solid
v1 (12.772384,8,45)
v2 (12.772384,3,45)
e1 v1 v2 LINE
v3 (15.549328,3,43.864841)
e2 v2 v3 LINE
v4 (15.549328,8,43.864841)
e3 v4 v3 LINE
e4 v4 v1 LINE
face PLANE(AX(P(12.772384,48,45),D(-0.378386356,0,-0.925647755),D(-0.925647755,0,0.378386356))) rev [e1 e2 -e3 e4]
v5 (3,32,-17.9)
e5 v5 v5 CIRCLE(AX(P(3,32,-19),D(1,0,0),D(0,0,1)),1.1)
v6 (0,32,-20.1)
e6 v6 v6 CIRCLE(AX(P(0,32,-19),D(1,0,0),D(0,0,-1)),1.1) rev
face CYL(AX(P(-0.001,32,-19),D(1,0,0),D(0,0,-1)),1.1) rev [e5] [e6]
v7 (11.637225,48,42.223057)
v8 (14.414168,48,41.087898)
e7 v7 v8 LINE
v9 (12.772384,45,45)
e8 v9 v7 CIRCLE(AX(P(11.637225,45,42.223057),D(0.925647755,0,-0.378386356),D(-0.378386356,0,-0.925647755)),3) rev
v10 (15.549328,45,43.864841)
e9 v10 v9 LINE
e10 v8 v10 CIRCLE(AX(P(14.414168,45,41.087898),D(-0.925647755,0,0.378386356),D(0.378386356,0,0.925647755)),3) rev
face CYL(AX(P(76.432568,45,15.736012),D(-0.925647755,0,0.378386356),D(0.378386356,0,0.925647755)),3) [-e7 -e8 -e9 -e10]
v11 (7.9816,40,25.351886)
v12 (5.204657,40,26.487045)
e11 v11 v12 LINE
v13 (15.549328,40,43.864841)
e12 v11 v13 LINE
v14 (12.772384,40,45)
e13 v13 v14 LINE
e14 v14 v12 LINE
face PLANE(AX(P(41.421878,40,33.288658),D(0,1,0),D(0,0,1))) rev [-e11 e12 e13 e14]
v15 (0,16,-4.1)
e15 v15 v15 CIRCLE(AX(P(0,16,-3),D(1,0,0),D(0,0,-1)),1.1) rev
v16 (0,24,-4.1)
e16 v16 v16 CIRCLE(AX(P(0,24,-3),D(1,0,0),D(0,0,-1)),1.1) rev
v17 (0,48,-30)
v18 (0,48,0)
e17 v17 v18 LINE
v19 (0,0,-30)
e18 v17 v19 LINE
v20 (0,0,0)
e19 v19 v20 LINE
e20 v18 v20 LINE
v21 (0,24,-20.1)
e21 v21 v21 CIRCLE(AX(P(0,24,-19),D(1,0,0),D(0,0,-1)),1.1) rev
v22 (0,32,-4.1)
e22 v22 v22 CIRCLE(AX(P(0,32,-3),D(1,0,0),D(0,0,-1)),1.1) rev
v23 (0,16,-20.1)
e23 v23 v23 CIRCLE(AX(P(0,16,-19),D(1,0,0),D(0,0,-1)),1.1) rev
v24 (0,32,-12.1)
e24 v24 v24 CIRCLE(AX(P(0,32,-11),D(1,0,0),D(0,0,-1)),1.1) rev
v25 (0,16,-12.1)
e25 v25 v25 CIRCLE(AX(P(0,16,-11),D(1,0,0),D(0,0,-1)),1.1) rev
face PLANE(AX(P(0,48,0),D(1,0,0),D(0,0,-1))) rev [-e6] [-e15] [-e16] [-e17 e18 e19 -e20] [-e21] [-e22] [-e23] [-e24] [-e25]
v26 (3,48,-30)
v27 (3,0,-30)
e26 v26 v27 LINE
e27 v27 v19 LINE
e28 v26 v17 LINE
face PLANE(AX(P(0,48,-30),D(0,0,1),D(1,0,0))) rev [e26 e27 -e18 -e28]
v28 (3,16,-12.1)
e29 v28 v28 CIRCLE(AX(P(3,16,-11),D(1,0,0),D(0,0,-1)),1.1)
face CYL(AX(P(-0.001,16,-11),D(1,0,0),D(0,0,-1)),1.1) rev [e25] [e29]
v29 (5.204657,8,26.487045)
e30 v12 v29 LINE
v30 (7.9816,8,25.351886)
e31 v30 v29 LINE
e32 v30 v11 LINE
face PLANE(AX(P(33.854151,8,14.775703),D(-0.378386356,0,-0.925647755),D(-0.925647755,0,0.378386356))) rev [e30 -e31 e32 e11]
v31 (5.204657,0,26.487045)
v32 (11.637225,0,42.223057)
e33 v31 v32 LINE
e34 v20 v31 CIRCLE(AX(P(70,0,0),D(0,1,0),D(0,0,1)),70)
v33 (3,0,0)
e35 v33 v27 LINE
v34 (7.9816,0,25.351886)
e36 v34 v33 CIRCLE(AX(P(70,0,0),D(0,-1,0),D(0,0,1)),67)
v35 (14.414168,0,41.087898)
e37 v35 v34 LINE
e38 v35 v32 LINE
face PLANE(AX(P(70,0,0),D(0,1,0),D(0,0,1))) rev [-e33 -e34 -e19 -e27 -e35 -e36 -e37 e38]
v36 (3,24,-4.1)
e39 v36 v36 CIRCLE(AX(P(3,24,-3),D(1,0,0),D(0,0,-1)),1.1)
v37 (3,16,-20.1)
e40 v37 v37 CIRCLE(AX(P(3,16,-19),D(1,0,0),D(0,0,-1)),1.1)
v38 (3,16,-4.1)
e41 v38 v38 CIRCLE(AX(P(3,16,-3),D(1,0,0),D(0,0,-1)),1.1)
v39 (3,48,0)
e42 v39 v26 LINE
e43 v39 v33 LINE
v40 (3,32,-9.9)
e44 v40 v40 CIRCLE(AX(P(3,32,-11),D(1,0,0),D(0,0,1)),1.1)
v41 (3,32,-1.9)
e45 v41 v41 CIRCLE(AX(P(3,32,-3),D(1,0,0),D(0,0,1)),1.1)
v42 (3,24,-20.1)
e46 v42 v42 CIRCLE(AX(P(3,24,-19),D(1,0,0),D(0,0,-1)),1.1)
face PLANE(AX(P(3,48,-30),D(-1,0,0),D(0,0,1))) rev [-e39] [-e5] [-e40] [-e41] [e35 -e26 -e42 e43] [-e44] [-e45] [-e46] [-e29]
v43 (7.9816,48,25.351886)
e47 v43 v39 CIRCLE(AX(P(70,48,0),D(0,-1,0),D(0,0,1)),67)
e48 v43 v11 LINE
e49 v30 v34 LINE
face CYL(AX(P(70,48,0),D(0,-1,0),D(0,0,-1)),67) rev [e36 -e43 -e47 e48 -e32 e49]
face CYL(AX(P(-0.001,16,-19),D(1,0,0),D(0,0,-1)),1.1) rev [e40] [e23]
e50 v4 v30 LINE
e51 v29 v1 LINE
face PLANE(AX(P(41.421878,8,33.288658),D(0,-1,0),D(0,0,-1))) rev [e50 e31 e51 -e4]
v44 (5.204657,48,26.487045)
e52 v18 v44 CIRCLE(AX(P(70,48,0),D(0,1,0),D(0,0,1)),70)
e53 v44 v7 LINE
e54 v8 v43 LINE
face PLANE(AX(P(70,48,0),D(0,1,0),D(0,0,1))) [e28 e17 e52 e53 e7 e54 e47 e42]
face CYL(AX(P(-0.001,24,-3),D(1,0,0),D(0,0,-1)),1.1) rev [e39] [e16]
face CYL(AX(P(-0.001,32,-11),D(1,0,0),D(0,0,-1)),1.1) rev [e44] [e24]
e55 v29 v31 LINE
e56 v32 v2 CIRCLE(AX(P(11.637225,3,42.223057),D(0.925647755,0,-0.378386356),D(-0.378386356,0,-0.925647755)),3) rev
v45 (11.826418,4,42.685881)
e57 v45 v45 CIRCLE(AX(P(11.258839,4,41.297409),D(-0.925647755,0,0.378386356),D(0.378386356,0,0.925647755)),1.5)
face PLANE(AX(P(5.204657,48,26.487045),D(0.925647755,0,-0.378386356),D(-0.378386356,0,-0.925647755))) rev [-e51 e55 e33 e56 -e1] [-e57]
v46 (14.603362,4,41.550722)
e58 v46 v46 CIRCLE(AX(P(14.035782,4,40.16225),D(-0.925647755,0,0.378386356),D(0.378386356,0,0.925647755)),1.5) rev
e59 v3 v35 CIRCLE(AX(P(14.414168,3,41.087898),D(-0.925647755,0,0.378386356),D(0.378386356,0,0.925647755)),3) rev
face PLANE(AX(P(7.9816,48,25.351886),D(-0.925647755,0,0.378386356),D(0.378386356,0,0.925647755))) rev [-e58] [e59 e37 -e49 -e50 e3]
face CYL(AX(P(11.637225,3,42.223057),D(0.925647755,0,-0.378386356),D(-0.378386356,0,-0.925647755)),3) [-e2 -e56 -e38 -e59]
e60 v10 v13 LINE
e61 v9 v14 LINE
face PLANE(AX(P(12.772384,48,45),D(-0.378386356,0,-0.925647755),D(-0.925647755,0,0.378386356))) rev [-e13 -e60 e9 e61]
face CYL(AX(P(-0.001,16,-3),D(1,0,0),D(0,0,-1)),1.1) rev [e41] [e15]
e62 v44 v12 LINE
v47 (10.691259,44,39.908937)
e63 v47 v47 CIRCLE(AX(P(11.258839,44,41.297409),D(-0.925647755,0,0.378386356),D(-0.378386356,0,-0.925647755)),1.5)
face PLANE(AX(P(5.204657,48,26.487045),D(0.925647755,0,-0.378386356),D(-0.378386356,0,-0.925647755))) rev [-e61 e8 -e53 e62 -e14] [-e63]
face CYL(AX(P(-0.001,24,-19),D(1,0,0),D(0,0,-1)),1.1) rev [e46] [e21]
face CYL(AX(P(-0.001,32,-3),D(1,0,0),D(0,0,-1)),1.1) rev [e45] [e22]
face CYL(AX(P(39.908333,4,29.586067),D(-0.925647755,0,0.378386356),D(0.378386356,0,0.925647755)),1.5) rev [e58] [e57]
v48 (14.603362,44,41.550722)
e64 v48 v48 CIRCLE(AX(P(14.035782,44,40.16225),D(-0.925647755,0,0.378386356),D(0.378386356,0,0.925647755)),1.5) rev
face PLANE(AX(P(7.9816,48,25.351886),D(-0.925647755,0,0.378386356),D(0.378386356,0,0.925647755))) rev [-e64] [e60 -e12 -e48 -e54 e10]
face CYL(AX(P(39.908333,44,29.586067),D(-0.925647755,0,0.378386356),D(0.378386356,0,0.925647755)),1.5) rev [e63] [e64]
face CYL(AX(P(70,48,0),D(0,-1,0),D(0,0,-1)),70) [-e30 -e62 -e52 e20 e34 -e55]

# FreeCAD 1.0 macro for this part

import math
import FreeCAD as App
import Part
import Sketcher
from FreeCAD import Vector
Q = App.Units.Quantity


def edges_at(feature, points):
    """Names of the edges that pass closest to the given points."""
    edges = feature.Shape.Edges
    near = lambda p: min(range(len(edges)), key=lambda i: edges[i].distToShape(Part.Vertex(*p))[0])
    return sorted({f"Edge{near(p) + 1}" for p in points})


def add_polygon(sketch, points):
    """Adds a closed chain of lines whose ends are joined by coincident constraints."""
    first, n = sketch.GeometryCount, len(points)
    for a, b in zip(points, points[1:] + points[:1]):
        sketch.addGeometry(Part.LineSegment(App.Vector(*a, 0), App.Vector(*b, 0)), False)
    for i in range(n):
        sketch.addConstraint(Sketcher.Constraint("Coincident", first + i, 2, first + (i + 1) % n, 1))

doc = App.newDocument("Part")
body = doc.addObject("PartDesign::Body", "Body")

# Sketch on XZ plane
sketch1 = body.newObject("Sketcher::SketchObject", "Sketch")
sketch1.AttachmentSupport = (doc.getObject("XZ_Plane"), [""])
sketch1.MapMode = "FlatFace"
sketch1.addGeometry([
    Part.LineSegment(Vector(0, -30, 0), Vector(0, 0, 0)),  # 0
    Part.ArcOfCircle(Part.Circle(Vector(70, 0, 0), Vector(0, 0, 1), 70), math.radians(158), math.radians(180)),  # 1
    Part.LineSegment(Vector(5.2, 26.5, 0), Vector(12.8, 45, 0)),  # 2
    Part.LineSegment(Vector(12.8, 45, 0), Vector(15.5, 43.9, 0)),  # 3
    Part.LineSegment(Vector(15.5, 43.9, 0), Vector(8, 25.4, 0)),  # 4
    Part.ArcOfCircle(Part.Circle(Vector(70, 0, 0), Vector(0, 0, 1), 67), math.radians(158), math.radians(180)),  # 5
    Part.LineSegment(Vector(3, 0, 0), Vector(3, -30, 0)),  # 6
    Part.LineSegment(Vector(3, -30, 0), Vector(0, -30, 0)),  # 7
], False)
sketch1.addConstraint([
    Sketcher.Constraint("Tangent", 0, 2, 1, 2),
    Sketcher.Constraint("Tangent", 1, 1, 2, 1),
    Sketcher.Constraint("Coincident", 2, 2, 3, 1),
    Sketcher.Constraint("Coincident", 3, 2, 4, 1),
    Sketcher.Constraint("Tangent", 4, 2, 5, 1),
    Sketcher.Constraint("Tangent", 5, 2, 6, 1),
    Sketcher.Constraint("Coincident", 6, 2, 7, 1),
    Sketcher.Constraint("Coincident", 7, 2, 0, 1),
    Sketcher.Constraint("Vertical", 0),
    Sketcher.Constraint("Vertical", 6),
    Sketcher.Constraint("Horizontal", 7),
    Sketcher.Constraint("Coincident", 0, 2, -1, 1),
    Sketcher.Constraint("Coincident", 5, 3, 1, 3),
    Sketcher.Constraint("Perpendicular", 2, 3),
    Sketcher.Constraint("Perpendicular", 3, 4),
    Sketcher.Constraint("Radius", 1, Q("70 mm")),
    Sketcher.Constraint("Radius", 5, Q("67 mm")),
    Sketcher.Constraint("DistanceY", 0, 1, 0, 2, Q("30 mm")),
    Sketcher.Constraint("Distance", 2, Q("20 mm")),
    Sketcher.Constraint("DistanceY", -1, 1, 2, 2, Q("45 mm")),
])
pad1 = body.newObject("PartDesign::Pad", "Pad")
pad1.Profile = sketch1
pad1.Length = 48
pad1.Reversed = True

# Sketch on an angled plane
sketch2 = body.newObject("Sketcher::SketchObject", "Sketch001")
sketch2.Placement = App.Placement(Vector(-4.817679, 0, 1.969371), App.Rotation(Vector(0.378386356, 0, 0.925647755), Vector(0, 1.000000001, 0), Vector(-0.925647755, 0, 0.378386356), "ZXY"))
sketch2.addGeometry(Part.Circle(Vector(42.5, 4, 0), Vector(0, 0, 1), 1.5), False)
sketch2.addConstraint([
    Sketcher.Constraint("Diameter", 0, Q("3 mm")),
    Sketcher.Constraint("DistanceY", -1, 1, 0, 3, Q("4 mm")),
    Sketcher.Constraint("DistanceX", -1, 1, 0, 3, Q("42.487045 mm")),
])
pocket1 = body.newObject("PartDesign::Pocket", "Pocket")
pocket1.Profile = sketch2
pocket1.Type = "UpToFirst"

# Sketch on an angled plane
sketch3 = body.newObject("Sketcher::SketchObject", "Sketch002")
sketch3.Placement = App.Placement(Vector(-4.817679, 0, 1.969371), App.Rotation(Vector(0.378386356, 0, 0.925647755), Vector(0, 1.000000001, 0), Vector(-0.925647755, 0, 0.378386356), "ZXY"))
sketch3.addGeometry(Part.Circle(Vector(42.5, 44, 0), Vector(0, 0, 1), 1.5), False)
sketch3.addConstraint([
    Sketcher.Constraint("Diameter", 0, Q("3 mm")),
    Sketcher.Constraint("DistanceY", -1, 1, 0, 3, Q("44 mm")),
    Sketcher.Constraint("DistanceX", -1, 1, 0, 3, Q("42.487045 mm")),
])
pocket2 = body.newObject("PartDesign::Pocket", "Pocket001")
pocket2.Profile = sketch3
pocket2.Type = "UpToFirst"

# Sketch on an angled plane
sketch4 = body.newObject("Sketcher::SketchObject", "Sketch003")
sketch4.Placement = App.Placement(Vector(-4.817679, 0, 1.969371), App.Rotation(Vector(0.378386356, 0, 0.925647755), Vector(0, 1.000000001, 0), Vector(-0.925647755, 0, 0.378386356), "ZXY"))
add_polygon(sketch4, [(26, 40), (26, 8), (46, 8), (46, 40)])  # lines 0-3
sketch4.addConstraint([
    Sketcher.Constraint("Vertical", 0),
    Sketcher.Constraint("Horizontal", 1),
    Sketcher.Constraint("Vertical", 2),
    Sketcher.Constraint("Horizontal", 3),
    Sketcher.Constraint("DistanceX", 1, 1, 1, 2, Q("20 mm")),
    Sketcher.Constraint("DistanceY", 0, 2, 0, 1, Q("32 mm")),
    Sketcher.Constraint("DistanceY", -1, 1, 0, 2, Q("8 mm")),
    Sketcher.Constraint("DistanceX", -1, 1, 0, 2, Q("26.487045 mm")),
])
pocket3 = body.newObject("PartDesign::Pocket", "Pocket002")
pocket3.Profile = sketch4
pocket3.Type = "UpToFirst"
doc.recompute()

fillet = body.newObject("PartDesign::Fillet", "Fillet")
fillet.Base = (pocket3, edges_at(pocket3, [(14.161, 48, 44.432), (14.161, 0, 44.432)]))
fillet.Radius = 3

# Sketch on YZ plane
sketch5 = body.newObject("Sketcher::SketchObject", "Sketch004")
sketch5.AttachmentSupport = (doc.getObject("YZ_Plane"), [""])
sketch5.MapMode = "FlatFace"
sketch5.AttachmentOffset = App.Placement(Vector(0, 0, 3), App.Rotation())
sketch5.addGeometry(Part.Circle(Vector(16, -3, 0), Vector(0, 0, 1), 1.1), False)
sketch5.addConstraint([
    Sketcher.Constraint("Diameter", 0, Q("2.2 mm")),
    Sketcher.Constraint("DistanceX", -1, 1, 0, 3, Q("16 mm")),
    Sketcher.Constraint("DistanceY", 0, 3, -1, 1, Q("3 mm")),
])
pocket4 = body.newObject("PartDesign::Pocket", "Pocket003")
pocket4.Profile = sketch5
pocket4.Type = "UpToFirst"

# Sketch on YZ plane
sketch6 = body.newObject("Sketcher::SketchObject", "Sketch005")
sketch6.AttachmentSupport = (doc.getObject("YZ_Plane"), [""])
sketch6.MapMode = "FlatFace"
sketch6.AttachmentOffset = App.Placement(Vector(0, 0, 3), App.Rotation())
sketch6.addGeometry(Part.Circle(Vector(16, -11, 0), Vector(0, 0, 1), 1.1), False)
sketch6.addConstraint([
    Sketcher.Constraint("Diameter", 0, Q("2.2 mm")),
    Sketcher.Constraint("DistanceX", -1, 1, 0, 3, Q("16 mm")),
    Sketcher.Constraint("DistanceY", 0, 3, -1, 1, Q("11 mm")),
])
pocket5 = body.newObject("PartDesign::Pocket", "Pocket004")
pocket5.Profile = sketch6
pocket5.Type = "UpToFirst"

# Sketch on YZ plane
sketch7 = body.newObject("Sketcher::SketchObject", "Sketch006")
sketch7.AttachmentSupport = (doc.getObject("YZ_Plane"), [""])
sketch7.MapMode = "FlatFace"
sketch7.AttachmentOffset = App.Placement(Vector(0, 0, 3), App.Rotation())
sketch7.addGeometry(Part.Circle(Vector(16, -19, 0), Vector(0, 0, 1), 1.1), False)
sketch7.addConstraint([
    Sketcher.Constraint("Diameter", 0, Q("2.2 mm")),
    Sketcher.Constraint("DistanceX", -1, 1, 0, 3, Q("16 mm")),
    Sketcher.Constraint("DistanceY", 0, 3, -1, 1, Q("19 mm")),
])
pocket6 = body.newObject("PartDesign::Pocket", "Pocket005")
pocket6.Profile = sketch7
pocket6.Type = "UpToFirst"

# Sketch on YZ plane
sketch8 = body.newObject("Sketcher::SketchObject", "Sketch007")
sketch8.AttachmentSupport = (doc.getObject("YZ_Plane"), [""])
sketch8.MapMode = "FlatFace"
sketch8.AttachmentOffset = App.Placement(Vector(0, 0, 3), App.Rotation())
sketch8.addGeometry(Part.Circle(Vector(24, -3, 0), Vector(0, 0, 1), 1.1), False)
sketch8.addConstraint([
    Sketcher.Constraint("Diameter", 0, Q("2.2 mm")),
    Sketcher.Constraint("DistanceX", -1, 1, 0, 3, Q("24 mm")),
    Sketcher.Constraint("DistanceY", 0, 3, -1, 1, Q("3 mm")),
])
pocket7 = body.newObject("PartDesign::Pocket", "Pocket006")
pocket7.Profile = sketch8
pocket7.Type = "UpToFirst"

# Sketch on YZ plane
sketch9 = body.newObject("Sketcher::SketchObject", "Sketch008")
sketch9.AttachmentSupport = (doc.getObject("YZ_Plane"), [""])
sketch9.MapMode = "FlatFace"
sketch9.AttachmentOffset = App.Placement(Vector(0, 0, 3), App.Rotation())
sketch9.addGeometry(Part.Circle(Vector(24, -19, 0), Vector(0, 0, 1), 1.1), False)
sketch9.addConstraint([
    Sketcher.Constraint("Diameter", 0, Q("2.2 mm")),
    Sketcher.Constraint("DistanceX", -1, 1, 0, 3, Q("24 mm")),
    Sketcher.Constraint("DistanceY", 0, 3, -1, 1, Q("19 mm")),
])
pocket8 = body.newObject("PartDesign::Pocket", "Pocket007")
pocket8.Profile = sketch9
pocket8.Type = "UpToFirst"

# Sketch on YZ plane
sketch10 = body.newObject("Sketcher::SketchObject", "Sketch009")
sketch10.AttachmentSupport = (doc.getObject("YZ_Plane"), [""])
sketch10.MapMode = "FlatFace"
sketch10.AttachmentOffset = App.Placement(Vector(0, 0, 3), App.Rotation())
sketch10.addGeometry(Part.Circle(Vector(32, -19, 0), Vector(0, 0, 1), 1.1), False)
sketch10.addConstraint([
    Sketcher.Constraint("Diameter", 0, Q("2.2 mm")),
    Sketcher.Constraint("DistanceX", -1, 1, 0, 3, Q("32 mm")),
    Sketcher.Constraint("DistanceY", 0, 3, -1, 1, Q("19 mm")),
])
pocket9 = body.newObject("PartDesign::Pocket", "Pocket008")
pocket9.Profile = sketch10
pocket9.Type = "UpToFirst"

# Sketch on YZ plane
sketch11 = body.newObject("Sketcher::SketchObject", "Sketch010")
sketch11.AttachmentSupport = (doc.getObject("YZ_Plane"), [""])
sketch11.MapMode = "FlatFace"
sketch11.AttachmentOffset = App.Placement(Vector(0, 0, 3), App.Rotation())
sketch11.addGeometry(Part.Circle(Vector(32, -11, 0), Vector(0, 0, 1), 1.1), False)
sketch11.addConstraint([
    Sketcher.Constraint("Diameter", 0, Q("2.2 mm")),
    Sketcher.Constraint("DistanceX", -1, 1, 0, 3, Q("32 mm")),
    Sketcher.Constraint("DistanceY", 0, 3, -1, 1, Q("11 mm")),
])
pocket10 = body.newObject("PartDesign::Pocket", "Pocket009")
pocket10.Profile = sketch11
pocket10.Type = "UpToFirst"

# Sketch on YZ plane
sketch12 = body.newObject("Sketcher::SketchObject", "Sketch011")
sketch12.AttachmentSupport = (doc.getObject("YZ_Plane"), [""])
sketch12.MapMode = "FlatFace"
sketch12.AttachmentOffset = App.Placement(Vector(0, 0, 3), App.Rotation())
sketch12.addGeometry(Part.Circle(Vector(32, -3, 0), Vector(0, 0, 1), 1.1), False)
sketch12.addConstraint([
    Sketcher.Constraint("Diameter", 0, Q("2.2 mm")),
    Sketcher.Constraint("DistanceX", -1, 1, 0, 3, Q("32 mm")),
    Sketcher.Constraint("DistanceY", 0, 3, -1, 1, Q("3 mm")),
])
pocket11 = body.newObject("PartDesign::Pocket", "Pocket010")
pocket11.Profile = sketch12
pocket11.Type = "UpToFirst"

doc.recompute()
